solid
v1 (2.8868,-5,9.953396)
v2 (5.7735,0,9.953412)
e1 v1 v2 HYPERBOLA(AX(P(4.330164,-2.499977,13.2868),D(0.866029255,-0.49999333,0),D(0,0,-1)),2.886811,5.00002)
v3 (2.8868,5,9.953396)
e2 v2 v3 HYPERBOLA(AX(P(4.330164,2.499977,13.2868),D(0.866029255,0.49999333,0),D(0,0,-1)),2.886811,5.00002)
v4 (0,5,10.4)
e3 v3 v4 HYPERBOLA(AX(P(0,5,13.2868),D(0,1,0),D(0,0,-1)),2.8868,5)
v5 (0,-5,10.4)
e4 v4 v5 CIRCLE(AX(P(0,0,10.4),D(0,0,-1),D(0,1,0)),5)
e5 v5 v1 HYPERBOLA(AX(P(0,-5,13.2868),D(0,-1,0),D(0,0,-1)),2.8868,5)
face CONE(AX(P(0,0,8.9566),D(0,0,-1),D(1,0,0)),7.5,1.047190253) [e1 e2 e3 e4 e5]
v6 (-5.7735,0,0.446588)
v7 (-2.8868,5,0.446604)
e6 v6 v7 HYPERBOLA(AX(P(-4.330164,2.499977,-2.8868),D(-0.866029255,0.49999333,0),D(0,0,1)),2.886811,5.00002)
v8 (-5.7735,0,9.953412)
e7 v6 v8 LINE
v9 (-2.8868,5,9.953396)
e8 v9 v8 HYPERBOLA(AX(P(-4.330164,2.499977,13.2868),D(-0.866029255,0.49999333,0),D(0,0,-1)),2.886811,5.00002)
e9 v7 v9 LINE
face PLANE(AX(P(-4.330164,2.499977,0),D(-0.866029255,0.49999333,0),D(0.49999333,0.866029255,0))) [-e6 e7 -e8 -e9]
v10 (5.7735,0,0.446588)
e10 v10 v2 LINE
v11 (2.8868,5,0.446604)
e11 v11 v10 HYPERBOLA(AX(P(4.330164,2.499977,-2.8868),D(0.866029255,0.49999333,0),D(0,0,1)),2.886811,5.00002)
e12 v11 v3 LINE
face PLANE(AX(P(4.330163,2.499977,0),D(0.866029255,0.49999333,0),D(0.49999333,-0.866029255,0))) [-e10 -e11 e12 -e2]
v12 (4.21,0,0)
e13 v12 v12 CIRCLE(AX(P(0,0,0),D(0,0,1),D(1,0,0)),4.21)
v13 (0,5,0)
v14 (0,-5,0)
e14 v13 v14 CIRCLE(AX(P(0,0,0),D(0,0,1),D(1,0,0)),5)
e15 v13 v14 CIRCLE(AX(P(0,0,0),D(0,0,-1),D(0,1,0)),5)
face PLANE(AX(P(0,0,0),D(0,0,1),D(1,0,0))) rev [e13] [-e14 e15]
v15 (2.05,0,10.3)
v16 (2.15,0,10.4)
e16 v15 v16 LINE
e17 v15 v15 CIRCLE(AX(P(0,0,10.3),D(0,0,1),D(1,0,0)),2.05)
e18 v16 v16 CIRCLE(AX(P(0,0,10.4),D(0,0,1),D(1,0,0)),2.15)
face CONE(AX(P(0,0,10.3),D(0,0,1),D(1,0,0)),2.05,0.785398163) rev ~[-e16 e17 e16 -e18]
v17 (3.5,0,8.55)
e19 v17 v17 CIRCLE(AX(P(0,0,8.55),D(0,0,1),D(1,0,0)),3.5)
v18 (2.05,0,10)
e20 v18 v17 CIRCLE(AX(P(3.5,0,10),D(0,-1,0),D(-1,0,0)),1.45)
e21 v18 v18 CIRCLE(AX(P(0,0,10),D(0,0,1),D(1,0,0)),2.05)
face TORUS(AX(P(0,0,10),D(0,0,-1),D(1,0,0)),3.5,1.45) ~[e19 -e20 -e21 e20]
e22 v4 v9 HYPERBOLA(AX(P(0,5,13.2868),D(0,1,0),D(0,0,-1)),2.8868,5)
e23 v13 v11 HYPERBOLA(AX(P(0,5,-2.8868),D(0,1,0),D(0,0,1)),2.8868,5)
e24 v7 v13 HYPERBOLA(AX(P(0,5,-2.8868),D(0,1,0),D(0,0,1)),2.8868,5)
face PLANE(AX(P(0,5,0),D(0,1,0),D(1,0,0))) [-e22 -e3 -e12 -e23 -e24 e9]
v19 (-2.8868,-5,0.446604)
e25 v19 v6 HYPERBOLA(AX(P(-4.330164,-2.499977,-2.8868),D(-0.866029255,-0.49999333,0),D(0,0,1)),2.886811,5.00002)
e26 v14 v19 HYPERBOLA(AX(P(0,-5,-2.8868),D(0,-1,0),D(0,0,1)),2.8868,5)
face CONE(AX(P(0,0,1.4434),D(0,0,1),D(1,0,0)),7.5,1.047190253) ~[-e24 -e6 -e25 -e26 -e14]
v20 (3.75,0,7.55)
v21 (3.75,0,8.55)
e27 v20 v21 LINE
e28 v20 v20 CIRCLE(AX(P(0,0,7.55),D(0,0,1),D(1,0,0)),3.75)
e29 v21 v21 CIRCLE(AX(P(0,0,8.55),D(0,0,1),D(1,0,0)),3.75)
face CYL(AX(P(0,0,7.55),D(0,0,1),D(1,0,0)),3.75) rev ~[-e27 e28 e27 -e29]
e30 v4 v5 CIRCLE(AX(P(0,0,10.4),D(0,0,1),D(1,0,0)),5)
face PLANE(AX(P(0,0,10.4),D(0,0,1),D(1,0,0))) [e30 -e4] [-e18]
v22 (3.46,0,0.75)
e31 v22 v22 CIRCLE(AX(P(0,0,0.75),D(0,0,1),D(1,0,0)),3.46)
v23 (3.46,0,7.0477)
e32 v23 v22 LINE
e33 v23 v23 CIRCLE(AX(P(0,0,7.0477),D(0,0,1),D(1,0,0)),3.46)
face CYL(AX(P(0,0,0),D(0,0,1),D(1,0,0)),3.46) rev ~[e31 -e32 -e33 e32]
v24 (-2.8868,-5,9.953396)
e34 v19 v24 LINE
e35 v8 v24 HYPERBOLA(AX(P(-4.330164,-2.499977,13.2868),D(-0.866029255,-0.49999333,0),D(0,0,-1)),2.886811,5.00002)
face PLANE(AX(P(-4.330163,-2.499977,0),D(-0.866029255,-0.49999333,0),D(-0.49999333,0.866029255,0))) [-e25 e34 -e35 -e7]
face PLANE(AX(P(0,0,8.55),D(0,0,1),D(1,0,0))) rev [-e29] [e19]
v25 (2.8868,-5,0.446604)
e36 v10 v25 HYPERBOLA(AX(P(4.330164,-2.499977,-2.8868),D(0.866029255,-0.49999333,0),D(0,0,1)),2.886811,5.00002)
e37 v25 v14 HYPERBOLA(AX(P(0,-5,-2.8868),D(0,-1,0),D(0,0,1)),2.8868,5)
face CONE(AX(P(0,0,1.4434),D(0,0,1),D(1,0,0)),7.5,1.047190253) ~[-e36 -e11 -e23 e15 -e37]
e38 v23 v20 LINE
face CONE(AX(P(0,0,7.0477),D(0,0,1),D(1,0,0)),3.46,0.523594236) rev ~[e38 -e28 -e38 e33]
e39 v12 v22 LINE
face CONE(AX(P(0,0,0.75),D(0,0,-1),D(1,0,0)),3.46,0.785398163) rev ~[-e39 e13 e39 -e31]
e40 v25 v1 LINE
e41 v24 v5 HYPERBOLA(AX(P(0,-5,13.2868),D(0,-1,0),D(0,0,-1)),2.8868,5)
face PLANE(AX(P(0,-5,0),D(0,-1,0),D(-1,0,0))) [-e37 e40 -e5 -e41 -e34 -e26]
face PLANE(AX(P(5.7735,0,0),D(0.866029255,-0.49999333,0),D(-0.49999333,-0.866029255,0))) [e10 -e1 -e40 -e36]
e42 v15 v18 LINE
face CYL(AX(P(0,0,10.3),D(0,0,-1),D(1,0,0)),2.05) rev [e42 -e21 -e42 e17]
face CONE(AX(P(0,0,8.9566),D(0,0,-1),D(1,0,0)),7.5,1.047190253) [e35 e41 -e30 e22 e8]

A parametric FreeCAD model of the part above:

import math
import FreeCAD as App
import Part
import Sketcher
Q = App.Units.Quantity


def edges_at(feature, points):
    """Names of the edges that pass closest to the given points."""
    edges = feature.Shape.Edges
    near = lambda p: min(range(len(edges)), key=lambda i: edges[i].distToShape(Part.Vertex(*p))[0])
    return sorted({f"Edge{near(p) + 1}" for p in points})

doc = App.newDocument("Part")
body = doc.addObject("PartDesign::Body", "Body")

# Sketch on XZ plane
sketch1 = body.newObject("Sketcher::SketchObject", "Sketch")
sketch1.AttachmentSupport = (doc.getObject("XZ_Plane"), [""])
sketch1.MapMode = "FlatFace"
sketch1.addGeometry(Part.LineSegment(App.Vector(5, 0, 0), App.Vector(3.46, 0, 0)), False)
sketch1.addGeometry(Part.LineSegment(App.Vector(3.46, 0, 0), App.Vector(3.46, 8.55, 0)), False)
sketch1.addGeometry(Part.ArcOfCircle(Part.Circle(App.Vector(3.5, 10, 0), App.Vector(0, 0, 1), 1.45), math.radians(180), math.radians(268)), False)
sketch1.addGeometry(Part.LineSegment(App.Vector(2.05, 10, 0), App.Vector(2.05, 10.3, 0)), False)
sketch1.addGeometry(Part.LineSegment(App.Vector(2.05, 10.3, 0), App.Vector(2.15, 10.4, 0)), False)
sketch1.addGeometry(Part.LineSegment(App.Vector(2.15, 10.4, 0), App.Vector(5, 10.4, 0)), False)
sketch1.addGeometry(Part.LineSegment(App.Vector(5, 10.4, 0), App.Vector(5, 0, 0)), False)
sketch1.addConstraint(Sketcher.Constraint("Coincident", 0, 2, 1, 1))
sketch1.addConstraint(Sketcher.Constraint("Coincident", 1, 2, 2, 2))
sketch1.addConstraint(Sketcher.Constraint("Tangent", 2, 1, 3, 1))
sketch1.addConstraint(Sketcher.Constraint("Coincident", 3, 2, 4, 1))
sketch1.addConstraint(Sketcher.Constraint("Coincident", 4, 2, 5, 1))
sketch1.addConstraint(Sketcher.Constraint("Coincident", 5, 2, 6, 1))
sketch1.addConstraint(Sketcher.Constraint("Coincident", 6, 2, 0, 1))
sketch1.addConstraint(Sketcher.Constraint("Horizontal", 0))
sketch1.addConstraint(Sketcher.Constraint("Vertical", 1))
sketch1.addConstraint(Sketcher.Constraint("Vertical", 3))
sketch1.addConstraint(Sketcher.Constraint("Horizontal", 5))
sketch1.addConstraint(Sketcher.Constraint("Vertical", 6))
sketch1.addConstraint(Sketcher.Constraint("PointOnObject", 0, 2, -1))
sketch1.addConstraint(Sketcher.Constraint("Angle", 4, Q("45 deg")))
sketch1.addConstraint(Sketcher.Constraint("Radius", 2, Q("1.45 mm")))
sketch1.addConstraint(Sketcher.Constraint("DistanceY", 6, 2, 6, 1, Q("10.4 mm")))
sketch1.addConstraint(Sketcher.Constraint("DistanceY", -1, 1, 2, 3, Q("10 mm")))
sketch1.addConstraint(Sketcher.Constraint("DistanceX", 3, 2, 4, 2, Q("0.1 mm")))
sketch1.addConstraint(Sketcher.Constraint("DistanceX", -1, 1, 5, 2, Q("5 mm")))
sketch1.addConstraint(Sketcher.Constraint("DistanceX", 0, 2, 0, 1, Q("1.54 mm")))
sketch1.addConstraint(Sketcher.Constraint("DistanceX", 5, 1, 5, 2, Q("2.85 mm")))
revolution = body.newObject("PartDesign::Revolution", "Revolution")
revolution.Profile = sketch1
revolution.ReferenceAxis = (sketch1, ["V_Axis"])
revolution.Angle = 360

# Sketch on XY plane
sketch2 = body.newObject("Sketcher::SketchObject", "Sketch001")
sketch2.AttachmentSupport = (doc.getObject("XY_Plane"), [""])
sketch2.MapMode = "FlatFace"
sketch2.addGeometry(Part.ArcOfCircle(Part.Circle(App.Vector(0, 0, 0), App.Vector(0, 0, 1), 5), math.radians(-30), math.radians(30)), False)
sketch2.addGeometry(Part.LineSegment(App.Vector(4.3, -2.5, 0), App.Vector(5.8, 0, 0)), False)
sketch2.addGeometry(Part.LineSegment(App.Vector(5.8, 0, 0), App.Vector(4.3, 2.5, 0)), False)
sketch2.addGeometry(Part.ArcOfCircle(Part.Circle(App.Vector(0, 0, 0), App.Vector(0, 0, 1), 5), math.radians(30), math.radians(90)), False)
sketch2.addGeometry(Part.LineSegment(App.Vector(4.3, 2.5, 0), App.Vector(2.9, 5, 0)), False)
sketch2.addGeometry(Part.LineSegment(App.Vector(2.9, 5, 0), App.Vector(0, 5, 0)), False)
sketch2.addGeometry(Part.LineSegment(App.Vector(2.9, -5, 0), App.Vector(4.3, -2.5, 0)), False)
sketch2.addGeometry(Part.ArcOfCircle(Part.Circle(App.Vector(0, 0, 0), App.Vector(0, 0, 1), 5), math.radians(-90), math.radians(-30)), False)
sketch2.addGeometry(Part.LineSegment(App.Vector(0, -5, 0), App.Vector(2.9, -5, 0)), False)
sketch2.addGeometry(Part.ArcOfCircle(Part.Circle(App.Vector(0, 0, 0), App.Vector(0, 0, 1), 5), math.radians(90), math.radians(150)), False)
sketch2.addGeometry(Part.LineSegment(App.Vector(0, 5, 0), App.Vector(-2.9, 5, 0)), False)
sketch2.addGeometry(Part.LineSegment(App.Vector(-2.9, 5, 0), App.Vector(-4.3, 2.5, 0)), False)
sketch2.addGeometry(Part.LineSegment(App.Vector(-2.9, -5, 0), App.Vector(0, -5, 0)), False)
sketch2.addGeometry(Part.ArcOfCircle(Part.Circle(App.Vector(0, 0, 0), App.Vector(0, 0, 1), 5), math.radians(-150), math.radians(-90)), False)
sketch2.addGeometry(Part.LineSegment(App.Vector(-4.3, -2.5, 0), App.Vector(-2.9, -5, 0)), False)
sketch2.addGeometry(Part.ArcOfCircle(Part.Circle(App.Vector(0, 0, 0), App.Vector(0, 0, 1), 5), math.radians(150), math.radians(210)), False)
sketch2.addGeometry(Part.LineSegment(App.Vector(-4.3, 2.5, 0), App.Vector(-5.8, 0, 0)), False)
sketch2.addGeometry(Part.LineSegment(App.Vector(-5.8, 0, 0), App.Vector(-4.3, -2.5, 0)), False)
sketch2.addConstraint(Sketcher.Constraint("Tangent", 0, 1, 1, 1))
sketch2.addConstraint(Sketcher.Constraint("Coincident", 1, 2, 2, 1))
sketch2.addConstraint(Sketcher.Constraint("Tangent", 2, 2, 0, 2))
sketch2.addConstraint(Sketcher.Constraint("Tangent", 3, 1, 4, 1))
sketch2.addConstraint(Sketcher.Constraint("Coincident", 4, 2, 5, 1))
sketch2.addConstraint(Sketcher.Constraint("Tangent", 5, 2, 3, 2))
sketch2.addConstraint(Sketcher.Constraint("Tangent", 6, 2, 7, 2))
sketch2.addConstraint(Sketcher.Constraint("Tangent", 7, 1, 8, 1))
sketch2.addConstraint(Sketcher.Constraint("Coincident", 8, 2, 6, 1))
sketch2.addConstraint(Sketcher.Constraint("Tangent", 9, 1, 10, 1))
sketch2.addConstraint(Sketcher.Constraint("Coincident", 10, 2, 11, 1))
sketch2.addConstraint(Sketcher.Constraint("Tangent", 11, 2, 9, 2))
sketch2.addConstraint(Sketcher.Constraint("Tangent", 12, 2, 13, 2))
sketch2.addConstraint(Sketcher.Constraint("Tangent", 13, 1, 14, 1))
sketch2.addConstraint(Sketcher.Constraint("Coincident", 14, 2, 12, 1))
sketch2.addConstraint(Sketcher.Constraint("Tangent", 15, 1, 16, 1))
sketch2.addConstraint(Sketcher.Constraint("Coincident", 16, 2, 17, 1))
sketch2.addConstraint(Sketcher.Constraint("Tangent", 17, 2, 15, 2))
sketch2.addConstraint(Sketcher.Constraint("Horizontal", 5))
sketch2.addConstraint(Sketcher.Constraint("Horizontal", 8))
sketch2.addConstraint(Sketcher.Constraint("Horizontal", 10))
sketch2.addConstraint(Sketcher.Constraint("Horizontal", 12))
sketch2.addConstraint(Sketcher.Constraint("Coincident", 0, 3, -1, 1))
sketch2.addConstraint(Sketcher.Constraint("Coincident", 3, 3, -1, 1))
sketch2.addConstraint(Sketcher.Constraint("Coincident", 7, 3, -1, 1))
sketch2.addConstraint(Sketcher.Constraint("Coincident", 9, 3, -1, 1))
sketch2.addConstraint(Sketcher.Constraint("Coincident", 13, 3, -1, 1))
sketch2.addConstraint(Sketcher.Constraint("Coincident", 15, 3, -1, 1))
sketch2.addConstraint(Sketcher.Constraint("Coincident", 3, 1, 2, 2))
sketch2.addConstraint(Sketcher.Constraint("Coincident", 6, 2, 0, 1))
sketch2.addConstraint(Sketcher.Constraint("Coincident", 15, 1, 11, 2))
sketch2.addConstraint(Sketcher.Constraint("Coincident", 17, 2, 13, 1))
sketch2.addConstraint(Sketcher.Constraint("Equal", 7, 9))
sketch2.addConstraint(Sketcher.Constraint("Symmetric", 1, 2, 16, 2, -1, 1))
sketch2.addConstraint(Sketcher.Constraint("PointOnObject", 1, 2, -1))
sketch2.addConstraint(Sketcher.Constraint("Equal", 2, 4))
sketch2.addConstraint(Sketcher.Constraint("Radius", 0, Q("5 mm")))
pad1 = body.newObject("PartDesign::Pad", "Pad")
pad1.Profile = sketch2
pad1.Length = 10.4

# Sketch on XZ plane
sketch3 = body.newObject("Sketcher::SketchObject", "Sketch002")
sketch3.AttachmentSupport = (doc.getObject("XZ_Plane"), [""])
sketch3.MapMode = "FlatFace"
sketch3.addGeometry(Part.LineSegment(App.Vector(7.5, 0, 0), App.Vector(5, 0, 0)), False)
sketch3.addGeometry(Part.LineSegment(App.Vector(5, 0, 0), App.Vector(7.5, 1.4, 0)), False)
sketch3.addGeometry(Part.LineSegment(App.Vector(7.5, 1.4, 0), App.Vector(7.5, 0, 0)), False)
sketch3.addGeometry(Part.LineSegment(App.Vector(7.5, 9, 0), App.Vector(5, 10.4, 0)), False)
sketch3.addGeometry(Part.LineSegment(App.Vector(5, 10.4, 0), App.Vector(7.5, 10.4, 0)), False)
sketch3.addGeometry(Part.LineSegment(App.Vector(7.5, 10.4, 0), App.Vector(7.5, 9, 0)), False)
sketch3.addConstraint(Sketcher.Constraint("Coincident", 0, 2, 1, 1))
sketch3.addConstraint(Sketcher.Constraint("Coincident", 1, 2, 2, 1))
sketch3.addConstraint(Sketcher.Constraint("Coincident", 2, 2, 0, 1))
sketch3.addConstraint(Sketcher.Constraint("Coincident", 3, 2, 4, 1))
sketch3.addConstraint(Sketcher.Constraint("Coincident", 4, 2, 5, 1))
sketch3.addConstraint(Sketcher.Constraint("Coincident", 5, 2, 3, 1))
sketch3.addConstraint(Sketcher.Constraint("Horizontal", 0))
sketch3.addConstraint(Sketcher.Constraint("Vertical", 2))
sketch3.addConstraint(Sketcher.Constraint("Horizontal", 4))
sketch3.addConstraint(Sketcher.Constraint("Vertical", 5))
sketch3.addConstraint(Sketcher.Constraint("PointOnObject", 0, 2, -1))
sketch3.addConstraint(Sketcher.Constraint("Vertical", 0, 2, 3, 2))
sketch3.addConstraint(Sketcher.Constraint("Vertical", 2, 2, 4, 2))
sketch3.addConstraint(Sketcher.Constraint("Equal", 2, 5))
sketch3.addConstraint(Sketcher.Constraint("Angle", 1, Q("30.0004 deg")))
sketch3.addConstraint(Sketcher.Constraint("DistanceX", -1, 1, 1, 2, Q("7.5 mm")))
sketch3.addConstraint(Sketcher.Constraint("DistanceY", -1, 1, 3, 2, Q("10.4 mm")))
sketch3.addConstraint(Sketcher.Constraint("DistanceX", 0, 2, 0, 1, Q("2.5 mm")))
groove = body.newObject("PartDesign::Groove", "Groove")
groove.Profile = sketch3
groove.ReferenceAxis = (sketch3, ["V_Axis"])
groove.Angle = 360

# Sketch on XZ plane
sketch4 = body.newObject("Sketcher::SketchObject", "Sketch003")
sketch4.AttachmentSupport = (doc.getObject("XZ_Plane"), [""])
sketch4.MapMode = "FlatFace"
sketch4.addGeometry(Part.LineSegment(App.Vector(3.75, 7.55, 0), App.Vector(3.46, 7.0477, 0)), False)
sketch4.addGeometry(Part.LineSegment(App.Vector(3.46, 7.0477, 0), App.Vector(3.46, 8.5506, 0)), False)
sketch4.addGeometry(Part.ArcOfCircle(Part.Circle(App.Vector(3.5, 10, 0), App.Vector(0, 0, 1), 1.45), math.radians(-91.580826), math.radians(-90)), False)
sketch4.addGeometry(Part.LineSegment(App.Vector(3.5, 8.55, 0), App.Vector(3.75, 8.55, 0)), False)
sketch4.addGeometry(Part.LineSegment(App.Vector(3.75, 8.55, 0), App.Vector(3.75, 7.55, 0)), False)
sketch4.addConstraint(Sketcher.Constraint("Coincident", 0, 2, 1, 1))
sketch4.addConstraint(Sketcher.Constraint("Coincident", 1, 2, 2, 1))
sketch4.addConstraint(Sketcher.Constraint("Coincident", 2, 2, 3, 1))
sketch4.addConstraint(Sketcher.Constraint("Coincident", 3, 2, 4, 1))
sketch4.addConstraint(Sketcher.Constraint("Coincident", 4, 2, 0, 1))
sketch4.addConstraint(Sketcher.Constraint("Vertical", 1))
sketch4.addConstraint(Sketcher.Constraint("Horizontal", 3))
sketch4.addConstraint(Sketcher.Constraint("Vertical", 4))
sketch4.addConstraint(Sketcher.Constraint("DistanceY", 4, 2, 4, 1, Q("1 mm")))
sketch4.addConstraint(Sketcher.Constraint("Radius", 2, Q("1.45 mm")))
sketch4.addConstraint(Sketcher.Constraint("DistanceY", -1, 1, 2, 3, Q("10 mm")))
sketch4.addConstraint(Sketcher.Constraint("DistanceX", 3, 1, 3, 2, Q("0.25 mm")))
sketch4.addConstraint(Sketcher.Constraint("DistanceX", -1, 1, 2, 3, Q("3.5 mm")))
sketch4.addConstraint(Sketcher.Constraint("DistanceX", -1, 1, 2, 2, Q("3.5 mm")))
sketch4.addConstraint(Sketcher.Constraint("DistanceY", 1, 2, 2, 3, Q("1.4494 mm")))
sketch4.addConstraint(Sketcher.Constraint("Distance", 0, Q("0.58 mm")))
groove2 = body.newObject("PartDesign::Groove", "Groove001")
groove2.Profile = sketch4
groove2.ReferenceAxis = (sketch4, ["V_Axis"])
groove2.Angle = 360
doc.recompute()

chamfer = body.newObject("PartDesign::Chamfer", "Chamfer")
chamfer.Base = (groove2, edges_at(groove2, [(-3.46, 0, 0)]))
chamfer.Size = 0.75

doc.recompute()
